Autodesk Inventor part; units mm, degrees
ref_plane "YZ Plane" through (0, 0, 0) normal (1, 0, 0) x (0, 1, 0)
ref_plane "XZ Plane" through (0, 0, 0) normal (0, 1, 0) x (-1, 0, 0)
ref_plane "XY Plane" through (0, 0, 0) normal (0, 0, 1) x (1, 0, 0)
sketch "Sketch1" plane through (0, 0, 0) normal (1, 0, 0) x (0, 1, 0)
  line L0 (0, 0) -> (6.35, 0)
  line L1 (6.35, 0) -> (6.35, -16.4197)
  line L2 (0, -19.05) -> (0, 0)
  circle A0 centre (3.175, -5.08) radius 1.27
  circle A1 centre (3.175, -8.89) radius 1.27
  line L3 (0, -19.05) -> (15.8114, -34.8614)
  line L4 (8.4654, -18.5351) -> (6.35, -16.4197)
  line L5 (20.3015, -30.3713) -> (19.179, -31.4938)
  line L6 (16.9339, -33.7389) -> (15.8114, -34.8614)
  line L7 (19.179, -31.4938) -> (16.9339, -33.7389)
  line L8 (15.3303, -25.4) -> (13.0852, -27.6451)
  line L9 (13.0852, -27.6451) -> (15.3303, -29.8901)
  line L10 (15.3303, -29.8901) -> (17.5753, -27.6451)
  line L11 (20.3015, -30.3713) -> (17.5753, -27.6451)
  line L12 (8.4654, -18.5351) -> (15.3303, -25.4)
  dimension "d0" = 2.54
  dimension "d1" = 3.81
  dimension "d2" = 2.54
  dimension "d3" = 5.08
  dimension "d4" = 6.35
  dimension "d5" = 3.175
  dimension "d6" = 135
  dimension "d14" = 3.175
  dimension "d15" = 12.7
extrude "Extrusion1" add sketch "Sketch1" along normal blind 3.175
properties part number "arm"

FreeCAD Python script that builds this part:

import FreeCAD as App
import Part
import Sketcher
from FreeCAD import Vector
Q = App.Units.Quantity

doc = App.newDocument("Part")
body = doc.addObject("PartDesign::Body", "Body")

# Sketch on YZ plane
sketch1 = body.newObject("Sketcher::SketchObject", "Sketch")
sketch1.AttachmentSupport = (doc.getObject("YZ_Plane"), [""])
sketch1.MapMode = "FlatFace"
sketch1.addGeometry(Part.LineSegment(Vector(6.3, 0, 0), Vector(0, 0, 0)), False)
sketch1.addGeometry(Part.LineSegment(Vector(0, 0, 0), Vector(0, -19.1, 0)), False)
sketch1.addGeometry(Part.LineSegment(Vector(0, -19.1, 0), Vector(15.8, -34.9, 0)), False)
sketch1.addGeometry(Part.LineSegment(Vector(15.8, -34.9, 0), Vector(20.3, -30.4, 0)), False)
sketch1.addGeometry(Part.LineSegment(Vector(20.3, -30.4, 0), Vector(17.6, -27.6, 0)), False)
sketch1.addGeometry(Part.LineSegment(Vector(17.6, -27.6, 0), Vector(15.3, -29.9, 0)), False)
sketch1.addGeometry(Part.LineSegment(Vector(15.3, -29.9, 0), Vector(13.1, -27.6, 0)), False)
sketch1.addGeometry(Part.LineSegment(Vector(13.1, -27.6, 0), Vector(15.3, -25.4, 0)), False)
sketch1.addGeometry(Part.LineSegment(Vector(15.3, -25.4, 0), Vector(6.3, -16.4, 0)), False)
sketch1.addGeometry(Part.LineSegment(Vector(6.3, -16.4, 0), Vector(6.3, 0, 0)), False)
sketch1.addGeometry(Part.Circle(Vector(3.2, -8.9, 0), Vector(0, 0, 1), 1.3), False)
sketch1.addGeometry(Part.Circle(Vector(3.2, -5.1, 0), Vector(0, 0, 1), 1.3), False)
sketch1.addConstraint(Sketcher.Constraint("Coincident", 0, 2, 1, 1))
sketch1.addConstraint(Sketcher.Constraint("Coincident", 1, 2, 2, 1))
sketch1.addConstraint(Sketcher.Constraint("Coincident", 2, 2, 3, 1))
sketch1.addConstraint(Sketcher.Constraint("Coincident", 3, 2, 4, 1))
sketch1.addConstraint(Sketcher.Constraint("Coincident", 4, 2, 5, 1))
sketch1.addConstraint(Sketcher.Constraint("Coincident", 5, 2, 6, 1))
sketch1.addConstraint(Sketcher.Constraint("Coincident", 6, 2, 7, 1))
sketch1.addConstraint(Sketcher.Constraint("Coincident", 7, 2, 8, 1))
sketch1.addConstraint(Sketcher.Constraint("Coincident", 8, 2, 9, 1))
sketch1.addConstraint(Sketcher.Constraint("Coincident", 9, 2, 0, 1))
sketch1.addConstraint(Sketcher.Constraint("Horizontal", 0))
sketch1.addConstraint(Sketcher.Constraint("Vertical", 1))
sketch1.addConstraint(Sketcher.Constraint("Vertical", 9))
sketch1.addConstraint(Sketcher.Constraint("Coincident", 0, 2, -1, 1))
sketch1.addConstraint(Sketcher.Constraint("Equal", 10, 11))
sketch1.addConstraint(Sketcher.Constraint("Perpendicular", 2, 3))
sketch1.addConstraint(Sketcher.Constraint("Perpendicular", 3, 4))
sketch1.addConstraint(Sketcher.Constraint("Perpendicular", 4, 5))
sketch1.addConstraint(Sketcher.Constraint("Perpendicular", 5, 6))
sketch1.addConstraint(Sketcher.Constraint("Perpendicular", 6, 7))
sketch1.addConstraint(Sketcher.Constraint("Perpendicular", 7, 8))
sketch1.addConstraint(Sketcher.Constraint("Horizontal", 4, 2, 6, 2))
sketch1.addConstraint(Sketcher.Constraint("Vertical", 10, 3, 11, 3))
sketch1.addConstraint(Sketcher.Constraint("Vertical", 5, 2, 7, 2))
sketch1.addConstraint(Sketcher.Constraint("Equal", 5, 6))
sketch1.addConstraint(Sketcher.Constraint("Diameter", 10, Q("0.1 in")))
sketch1.addConstraint(Sketcher.Constraint("Distance", 8, Q("0.5 in")))
sketch1.addConstraint(Sketcher.Constraint("DistanceX", 0, 2, 0, 1, Q("0.25 in")))
sketch1.addConstraint(Sketcher.Constraint("DistanceY", 11, 3, -1, 1, Q("0.2 in")))
sketch1.addConstraint(Sketcher.Constraint("Distance", 3, Q("0.25 in")))
sketch1.addConstraint(Sketcher.Constraint("DistanceY", 10, 3, 11, 3, Q("0.15 in")))
sketch1.addConstraint(Sketcher.Constraint("Distance", 5, Q("0.125 in")))
sketch1.addConstraint(Sketcher.Constraint("DistanceX", -1, 1, 10, 3, Q("0.125 in")))
sketch1.addConstraint(Sketcher.Constraint("DistanceY", 7, 2, -1, 1, Q("1 in")))
sketch1.addConstraint(Sketcher.Constraint("Distance", 4, Q("0.1518 in")))
pad1 = body.newObject("PartDesign::Pad", "Pad")
pad1.Profile = sketch1
pad1.Length = Q("0.125 in")

doc.recompute()
